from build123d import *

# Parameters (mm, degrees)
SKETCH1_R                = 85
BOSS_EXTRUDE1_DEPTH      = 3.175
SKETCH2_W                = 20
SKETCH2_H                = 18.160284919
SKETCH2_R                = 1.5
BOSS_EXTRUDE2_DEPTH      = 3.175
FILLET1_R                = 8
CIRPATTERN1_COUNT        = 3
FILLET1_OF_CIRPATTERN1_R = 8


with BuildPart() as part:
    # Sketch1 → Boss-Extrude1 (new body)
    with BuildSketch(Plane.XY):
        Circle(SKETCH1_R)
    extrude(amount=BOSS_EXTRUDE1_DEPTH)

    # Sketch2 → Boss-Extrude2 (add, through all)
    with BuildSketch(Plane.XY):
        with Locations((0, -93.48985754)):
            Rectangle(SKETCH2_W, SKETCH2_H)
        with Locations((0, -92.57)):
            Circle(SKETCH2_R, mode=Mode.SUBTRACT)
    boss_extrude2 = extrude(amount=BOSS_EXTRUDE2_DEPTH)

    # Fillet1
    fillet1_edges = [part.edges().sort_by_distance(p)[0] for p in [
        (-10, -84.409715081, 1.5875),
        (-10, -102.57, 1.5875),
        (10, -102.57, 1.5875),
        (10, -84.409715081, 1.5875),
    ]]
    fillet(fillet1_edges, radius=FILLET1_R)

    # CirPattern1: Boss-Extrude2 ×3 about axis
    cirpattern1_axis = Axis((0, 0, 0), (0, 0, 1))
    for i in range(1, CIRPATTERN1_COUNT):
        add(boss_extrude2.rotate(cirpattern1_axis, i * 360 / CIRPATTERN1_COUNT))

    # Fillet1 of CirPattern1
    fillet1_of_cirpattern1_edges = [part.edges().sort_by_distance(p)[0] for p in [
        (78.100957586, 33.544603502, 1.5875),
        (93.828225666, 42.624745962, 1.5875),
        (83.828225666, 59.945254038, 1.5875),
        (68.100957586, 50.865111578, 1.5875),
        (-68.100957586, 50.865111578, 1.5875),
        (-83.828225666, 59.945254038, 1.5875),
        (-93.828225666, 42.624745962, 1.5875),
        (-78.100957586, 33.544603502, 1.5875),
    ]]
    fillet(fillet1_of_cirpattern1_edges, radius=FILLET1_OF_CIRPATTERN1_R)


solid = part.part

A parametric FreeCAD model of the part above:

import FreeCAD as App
import Part
import Sketcher
from FreeCAD import Vector
Q = App.Units.Quantity


def edges_at(feature, points):
    """Names of the edges that pass closest to the given points."""
    edges = feature.Shape.Edges
    near = lambda p: min(range(len(edges)), key=lambda i: edges[i].distToShape(Part.Vertex(*p))[0])
    return sorted({f"Edge{near(p) + 1}" for p in points})


def add_polygon(sketch, points):
    """Adds a closed chain of lines whose ends are joined by coincident constraints."""
    first, n = sketch.GeometryCount, len(points)
    for a, b in zip(points, points[1:] + points[:1]):
        sketch.addGeometry(Part.LineSegment(App.Vector(*a, 0), App.Vector(*b, 0)), False)
    for i in range(n):
        sketch.addConstraint(Sketcher.Constraint("Coincident", first + i, 2, first + (i + 1) % n, 1))

doc = App.newDocument("Part")
body = doc.addObject("PartDesign::Body", "Body")

sketch1 = body.newObject("Sketcher::SketchObject", "Sketch")
sketch1.AttachmentSupport = (doc.getObject("XY_Plane"), [""])
sketch1.MapMode = "FlatFace"
sketch1.addGeometry(Part.Circle(Vector(0, 0, 0), Vector(0, 0, 1), 85), False)
sketch1.addConstraint([
    Sketcher.Constraint("Coincident", 0, 3, -1, 1),
    Sketcher.Constraint("Diameter", 0, Q("170 mm")),
])
pad1 = body.newObject("PartDesign::Pad", "Pad")
pad1.Profile = sketch1
pad1.Length = 3.175

sketch2 = body.newObject("Sketcher::SketchObject", "Sketch001")
sketch2.AttachmentSupport = (doc.getObject("XY_Plane"), [""])
sketch2.MapMode = "FlatFace"
add_polygon(sketch2, [(-10, -84.4), (-10, -102.6), (10, -102.6), (10, -84.4)])
sketch2.addGeometry(Part.Circle(Vector(0, -92.6, 0), Vector(0, 0, 1), 1.5), False)
sketch2.addConstraint([
    Sketcher.Constraint("Vertical", 0),
    Sketcher.Constraint("Horizontal", 1),
    Sketcher.Constraint("Vertical", 2),
    Sketcher.Constraint("Horizontal", 3),
    Sketcher.Constraint("PointOnObject", 4, 3, -2),
    Sketcher.Constraint("Diameter", 4, Q("3 mm")),
    Sketcher.Constraint("DistanceX", 1, 1, 1, 2, Q("20 mm")),
    Sketcher.Constraint("DistanceX", 0, 2, -1, 1, Q("10 mm")),
    Sketcher.Constraint("DistanceY", 0, 2, 4, 3, Q("10 mm")),
    Sketcher.Constraint("DistanceY", 4, 3, -1, 1, Q("92.57 mm")),
    Sketcher.Constraint("DistanceY", 0, 2, 0, 1, Q("18.160285 mm")),
])
pad2 = body.newObject("PartDesign::Pad", "Pad001")
pad2.Profile = sketch2
pad2.Length = 3.175
doc.recompute()

fillet = body.newObject("PartDesign::Fillet", "Fillet")
fillet.Base = (pad2, edges_at(pad2, [
    (-10, -84.41, 1.587),
    (-10, -102.57, 1.587),
    (10, -102.57, 1.587),
    (10, -84.41, 1.587),
]))
fillet.Radius = 8
doc.recompute()

polarpattern = body.newObject("PartDesign::PolarPattern", "PolarPattern")
polarpattern.Originals = [pad2]
polarpattern.Axis = (doc.getObject("Z_Axis"), [""])
polarpattern.Angle = 360
polarpattern.Occurrences = 3
body.Tip = polarpattern
doc.recompute()

fillet2 = body.newObject("PartDesign::Fillet", "Fillet001")
fillet2.Base = (polarpattern, edges_at(polarpattern, [
    (78.101, 33.545, 1.587),
    (93.828, 42.625, 1.587),
    (83.828, 59.945, 1.587),
    (68.101, 50.865, 1.587),
    (-68.101, 50.865, 1.587),
    (-83.828, 59.945, 1.587),
    (-93.828, 42.625, 1.587),
    (-78.101, 33.545, 1.587),
]))
fillet2.Radius = 8

doc.recompute()
